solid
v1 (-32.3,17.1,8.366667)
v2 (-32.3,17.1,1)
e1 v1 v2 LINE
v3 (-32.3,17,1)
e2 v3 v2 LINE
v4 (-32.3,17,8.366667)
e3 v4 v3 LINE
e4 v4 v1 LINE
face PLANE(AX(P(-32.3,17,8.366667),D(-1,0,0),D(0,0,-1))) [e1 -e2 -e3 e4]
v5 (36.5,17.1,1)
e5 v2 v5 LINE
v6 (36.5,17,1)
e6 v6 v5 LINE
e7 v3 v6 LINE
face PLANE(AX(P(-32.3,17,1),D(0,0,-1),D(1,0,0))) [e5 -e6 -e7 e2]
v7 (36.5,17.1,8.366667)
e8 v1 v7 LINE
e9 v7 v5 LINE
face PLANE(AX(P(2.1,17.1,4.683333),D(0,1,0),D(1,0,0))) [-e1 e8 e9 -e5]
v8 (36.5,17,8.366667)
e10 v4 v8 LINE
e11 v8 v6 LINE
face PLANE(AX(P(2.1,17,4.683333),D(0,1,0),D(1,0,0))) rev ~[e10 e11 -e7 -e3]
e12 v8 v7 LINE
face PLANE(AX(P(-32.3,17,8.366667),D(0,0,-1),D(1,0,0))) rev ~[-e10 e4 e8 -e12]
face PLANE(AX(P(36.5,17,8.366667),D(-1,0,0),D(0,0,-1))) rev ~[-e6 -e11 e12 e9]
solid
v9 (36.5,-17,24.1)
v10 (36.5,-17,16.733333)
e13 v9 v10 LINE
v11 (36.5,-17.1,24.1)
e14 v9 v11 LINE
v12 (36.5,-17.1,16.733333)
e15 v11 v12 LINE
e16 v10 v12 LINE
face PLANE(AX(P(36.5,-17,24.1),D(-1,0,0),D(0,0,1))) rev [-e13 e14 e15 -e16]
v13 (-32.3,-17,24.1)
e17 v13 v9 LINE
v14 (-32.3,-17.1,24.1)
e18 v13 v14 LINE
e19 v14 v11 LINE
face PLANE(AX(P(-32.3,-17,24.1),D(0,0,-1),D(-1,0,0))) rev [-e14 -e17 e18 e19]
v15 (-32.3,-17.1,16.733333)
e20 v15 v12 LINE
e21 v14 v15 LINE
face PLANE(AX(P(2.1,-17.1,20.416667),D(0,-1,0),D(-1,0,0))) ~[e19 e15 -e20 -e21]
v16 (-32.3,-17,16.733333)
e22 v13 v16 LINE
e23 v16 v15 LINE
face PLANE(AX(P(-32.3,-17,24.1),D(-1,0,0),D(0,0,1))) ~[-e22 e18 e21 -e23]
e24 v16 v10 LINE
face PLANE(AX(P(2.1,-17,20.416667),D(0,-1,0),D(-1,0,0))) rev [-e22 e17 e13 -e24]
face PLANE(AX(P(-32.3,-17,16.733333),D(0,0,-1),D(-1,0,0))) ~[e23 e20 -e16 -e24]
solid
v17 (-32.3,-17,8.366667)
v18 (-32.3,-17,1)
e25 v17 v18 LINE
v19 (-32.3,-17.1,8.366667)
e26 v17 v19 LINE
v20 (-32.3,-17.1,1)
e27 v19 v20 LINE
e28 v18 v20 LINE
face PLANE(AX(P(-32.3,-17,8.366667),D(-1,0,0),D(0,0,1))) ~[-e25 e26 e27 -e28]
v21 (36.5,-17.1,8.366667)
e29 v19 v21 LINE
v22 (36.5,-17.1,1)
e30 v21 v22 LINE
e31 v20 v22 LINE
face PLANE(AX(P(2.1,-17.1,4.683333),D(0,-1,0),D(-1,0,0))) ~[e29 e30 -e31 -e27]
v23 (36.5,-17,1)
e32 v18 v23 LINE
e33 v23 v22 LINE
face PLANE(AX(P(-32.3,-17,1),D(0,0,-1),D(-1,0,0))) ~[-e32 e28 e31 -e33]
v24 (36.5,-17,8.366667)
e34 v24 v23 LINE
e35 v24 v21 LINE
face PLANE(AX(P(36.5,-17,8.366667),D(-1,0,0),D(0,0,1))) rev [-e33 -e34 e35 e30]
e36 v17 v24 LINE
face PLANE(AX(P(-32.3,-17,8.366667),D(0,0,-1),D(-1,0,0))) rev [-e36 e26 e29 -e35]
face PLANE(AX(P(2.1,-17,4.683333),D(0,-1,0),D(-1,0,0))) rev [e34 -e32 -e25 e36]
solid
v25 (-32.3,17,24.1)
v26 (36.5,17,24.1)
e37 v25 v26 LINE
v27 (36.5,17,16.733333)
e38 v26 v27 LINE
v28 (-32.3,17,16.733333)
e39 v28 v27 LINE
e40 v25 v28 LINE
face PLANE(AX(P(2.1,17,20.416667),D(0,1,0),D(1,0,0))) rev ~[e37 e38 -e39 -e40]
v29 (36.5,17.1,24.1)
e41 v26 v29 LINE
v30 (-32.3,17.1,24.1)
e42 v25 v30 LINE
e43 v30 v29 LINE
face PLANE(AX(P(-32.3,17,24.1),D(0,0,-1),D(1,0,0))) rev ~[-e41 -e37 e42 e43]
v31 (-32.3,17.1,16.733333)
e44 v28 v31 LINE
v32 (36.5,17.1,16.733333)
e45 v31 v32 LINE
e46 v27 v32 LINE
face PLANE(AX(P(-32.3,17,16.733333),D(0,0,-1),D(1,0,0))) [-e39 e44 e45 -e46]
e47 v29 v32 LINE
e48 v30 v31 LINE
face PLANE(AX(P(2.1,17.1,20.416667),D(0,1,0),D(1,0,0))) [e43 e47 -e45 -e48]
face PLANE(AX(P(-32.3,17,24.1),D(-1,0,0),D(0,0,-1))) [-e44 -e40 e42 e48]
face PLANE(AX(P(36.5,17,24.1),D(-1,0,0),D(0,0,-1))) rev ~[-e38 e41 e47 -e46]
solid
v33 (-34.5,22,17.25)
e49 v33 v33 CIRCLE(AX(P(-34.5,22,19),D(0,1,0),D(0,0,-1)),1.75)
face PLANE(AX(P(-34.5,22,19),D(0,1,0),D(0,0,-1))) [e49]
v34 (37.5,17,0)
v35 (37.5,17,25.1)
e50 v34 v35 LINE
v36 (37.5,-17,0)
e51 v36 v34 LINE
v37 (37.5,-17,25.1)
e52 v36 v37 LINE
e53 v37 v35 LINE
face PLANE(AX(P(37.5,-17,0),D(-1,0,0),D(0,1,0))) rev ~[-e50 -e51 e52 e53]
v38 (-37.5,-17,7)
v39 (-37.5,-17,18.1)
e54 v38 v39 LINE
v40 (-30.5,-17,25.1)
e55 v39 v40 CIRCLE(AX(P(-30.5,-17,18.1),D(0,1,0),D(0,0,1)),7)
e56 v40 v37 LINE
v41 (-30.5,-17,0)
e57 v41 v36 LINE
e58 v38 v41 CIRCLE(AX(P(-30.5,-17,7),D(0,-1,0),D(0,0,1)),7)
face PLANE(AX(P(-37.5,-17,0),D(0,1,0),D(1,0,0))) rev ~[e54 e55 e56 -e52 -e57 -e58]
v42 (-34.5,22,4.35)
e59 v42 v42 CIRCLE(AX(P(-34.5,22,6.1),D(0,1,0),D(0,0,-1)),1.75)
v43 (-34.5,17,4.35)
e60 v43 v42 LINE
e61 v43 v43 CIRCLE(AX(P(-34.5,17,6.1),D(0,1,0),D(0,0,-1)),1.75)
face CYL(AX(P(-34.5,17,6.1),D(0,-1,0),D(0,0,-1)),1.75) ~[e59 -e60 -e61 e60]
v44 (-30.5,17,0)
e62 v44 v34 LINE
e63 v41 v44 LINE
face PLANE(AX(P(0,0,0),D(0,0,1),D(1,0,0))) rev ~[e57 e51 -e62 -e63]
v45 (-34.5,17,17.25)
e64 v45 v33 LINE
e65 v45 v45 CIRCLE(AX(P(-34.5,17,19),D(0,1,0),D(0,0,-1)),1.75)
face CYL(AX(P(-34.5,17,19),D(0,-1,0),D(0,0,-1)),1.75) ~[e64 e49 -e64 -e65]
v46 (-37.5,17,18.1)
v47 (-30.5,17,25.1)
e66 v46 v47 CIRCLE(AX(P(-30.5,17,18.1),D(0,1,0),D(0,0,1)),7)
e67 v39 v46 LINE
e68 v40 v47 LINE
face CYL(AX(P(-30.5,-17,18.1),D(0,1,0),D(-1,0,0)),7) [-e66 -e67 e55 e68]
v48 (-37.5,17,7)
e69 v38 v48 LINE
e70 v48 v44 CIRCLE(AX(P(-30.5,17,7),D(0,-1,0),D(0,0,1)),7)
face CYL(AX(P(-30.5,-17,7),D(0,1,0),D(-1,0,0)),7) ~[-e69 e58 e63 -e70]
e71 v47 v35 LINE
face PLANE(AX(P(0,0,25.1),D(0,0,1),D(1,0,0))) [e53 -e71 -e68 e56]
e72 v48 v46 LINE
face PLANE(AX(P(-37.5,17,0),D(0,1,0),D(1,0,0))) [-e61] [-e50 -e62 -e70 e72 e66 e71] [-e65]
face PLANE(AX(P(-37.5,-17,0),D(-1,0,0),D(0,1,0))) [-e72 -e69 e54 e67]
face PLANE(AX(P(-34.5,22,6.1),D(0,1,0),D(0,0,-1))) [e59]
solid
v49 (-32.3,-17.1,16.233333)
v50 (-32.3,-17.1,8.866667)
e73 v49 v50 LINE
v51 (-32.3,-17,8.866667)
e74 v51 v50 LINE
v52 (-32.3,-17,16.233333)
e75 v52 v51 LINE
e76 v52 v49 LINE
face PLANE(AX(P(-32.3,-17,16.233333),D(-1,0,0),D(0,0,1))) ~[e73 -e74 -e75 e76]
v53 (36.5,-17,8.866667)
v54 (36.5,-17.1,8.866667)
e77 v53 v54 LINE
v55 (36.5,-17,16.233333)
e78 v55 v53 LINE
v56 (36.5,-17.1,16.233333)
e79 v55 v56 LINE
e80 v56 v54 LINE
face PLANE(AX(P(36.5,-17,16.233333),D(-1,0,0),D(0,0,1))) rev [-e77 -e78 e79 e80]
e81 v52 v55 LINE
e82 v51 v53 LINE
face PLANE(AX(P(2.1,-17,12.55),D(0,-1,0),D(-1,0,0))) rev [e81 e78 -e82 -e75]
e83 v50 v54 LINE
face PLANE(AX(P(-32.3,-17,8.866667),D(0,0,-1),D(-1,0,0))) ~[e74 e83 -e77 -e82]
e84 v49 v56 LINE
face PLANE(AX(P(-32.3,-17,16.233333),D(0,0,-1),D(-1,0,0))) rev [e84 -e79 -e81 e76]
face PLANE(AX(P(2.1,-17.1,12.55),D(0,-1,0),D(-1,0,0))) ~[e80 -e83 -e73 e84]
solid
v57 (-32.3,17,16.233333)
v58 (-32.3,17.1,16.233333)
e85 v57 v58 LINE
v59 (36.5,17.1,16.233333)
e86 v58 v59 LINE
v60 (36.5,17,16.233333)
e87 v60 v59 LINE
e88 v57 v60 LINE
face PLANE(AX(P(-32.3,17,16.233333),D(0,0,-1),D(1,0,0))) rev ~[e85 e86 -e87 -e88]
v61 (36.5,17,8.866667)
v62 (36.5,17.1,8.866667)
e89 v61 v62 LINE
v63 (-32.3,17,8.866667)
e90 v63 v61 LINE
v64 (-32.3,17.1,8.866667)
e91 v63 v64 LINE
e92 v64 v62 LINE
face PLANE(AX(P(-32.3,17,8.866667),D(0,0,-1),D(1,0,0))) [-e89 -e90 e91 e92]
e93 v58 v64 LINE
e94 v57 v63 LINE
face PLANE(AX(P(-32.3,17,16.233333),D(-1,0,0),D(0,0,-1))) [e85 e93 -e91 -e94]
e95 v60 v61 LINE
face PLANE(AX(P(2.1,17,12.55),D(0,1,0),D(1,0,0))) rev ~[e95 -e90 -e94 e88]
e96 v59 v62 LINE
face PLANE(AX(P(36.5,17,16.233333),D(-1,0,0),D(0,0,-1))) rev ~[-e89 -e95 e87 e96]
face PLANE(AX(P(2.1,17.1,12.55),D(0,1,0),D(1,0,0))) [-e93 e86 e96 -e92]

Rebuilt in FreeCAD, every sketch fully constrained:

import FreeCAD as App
import Part
import Sketcher

V = App.Vector


def edges_at(feature, points):
    """Names of the edges that pass closest to the given points."""
    edges = feature.Shape.Edges
    near = lambda p: min(range(len(edges)), key=lambda i: edges[i].distToShape(Part.Vertex(*p))[0])
    return sorted({f"Edge{near(p) + 1}" for p in points})


def add_polygon(sketch, points):
    """Adds a closed chain of lines whose ends are joined by coincident constraints."""
    first, n = sketch.GeometryCount, len(points)
    for a, b in zip(points, points[1:] + points[:1]):
        sketch.addGeometry(Part.LineSegment(App.Vector(*a, 0), App.Vector(*b, 0)), False)
    for i in range(n):
        sketch.addConstraint(Sketcher.Constraint("Coincident", first + i, 2, first + (i + 1) % n, 1))

doc = App.newDocument("Part")
params = doc.addObject("Spreadsheet::Sheet", "Params")
for row, (alias, value) in enumerate([
    ("sketch1_width", "75 mm"),
    ("sketch1_height", "34 mm"),
    ("pad1_length", "25.1 mm"),
    ("fillet_radius", "7 mm"),
    ("sketch2_diameter", "3.5 mm"),
    ("pad2_length", "5 mm"),
    ("sketch3_width", "68.8 mm"),
    ("pad3_length", "0.1 mm"),
    ("sketch4_width", "68.8 mm"),
    ("pad4_length", "0.1 mm"),
    ("sketch5_width", "68.8 mm"),
    ("pad5_length", "0.1 mm"),
], start=1):
    params.set(f"A{row}", alias)
    params.set(f"B{row}", "=" + value)
    params.setAlias(f"B{row}", alias)

body = doc.addObject("PartDesign::Body", "Body")

# Sketch on XY plane
sketch1 = doc.addObject("Sketcher::SketchObject", "Sketch")
body.addObject(sketch1)
sketch1.AttachmentSupport = (doc.XY_Plane, [""])
sketch1.MapMode = "FlatFace"
add_polygon(sketch1, [(-37.5, 17), (-37.5, -17), (37.5, -17), (37.5, 17)])  # lines 0-3
sketch1.addConstraint([
    Sketcher.Constraint("Vertical", 0),
    Sketcher.Constraint("Horizontal", 1),
    Sketcher.Constraint("Vertical", 2),
    Sketcher.Constraint("Horizontal", 3),
    Sketcher.Constraint("Symmetric", 0, 2, 2, 2, -1, 1),
    Sketcher.Constraint("DistanceX", 1, 1, 1, 2, 75.0),
    Sketcher.Constraint("DistanceY", 0, 2, 0, 1, 34.0),
])
sketch1.setExpression("Constraints[9]", "Params.sketch1_width")
sketch1.setExpression("Constraints[10]", "Params.sketch1_height")
pad1 = doc.addObject("PartDesign::Pad", "Pad")
body.addObject(pad1)
pad1.Profile = sketch1
pad1.setExpression("Length", "Params.pad1_length")
doc.recompute()

fillet = doc.addObject("PartDesign::Fillet", "Fillet")
body.addObject(fillet)
fillet.Base = (pad1, edges_at(pad1, [(-37.5, 0, 25.1), (-37.5, 0, 0)]))
fillet.setExpression("Radius", "Params.fillet_radius")

# Sketch on XZ plane
sketch2 = doc.addObject("Sketcher::SketchObject", "Sketch001")
body.addObject(sketch2)
sketch2.AttachmentSupport = (doc.XZ_Plane, [""])
sketch2.MapMode = "FlatFace"
sketch2.AttachmentOffset = App.Placement(V(0, 0, -17), App.Rotation())
sketch2.addGeometry([
    Part.Circle(V(-34.5, 6.1, 0), V(0, 0, 1), 1.75),
    Part.Circle(V(-34.5, 19, 0), V(0, 0, 1), 1.75),
], False)
sketch2.addConstraint([
    Sketcher.Constraint("Equal", 0, 1),
    Sketcher.Constraint("Vertical", 0, 3, 1, 3),
    Sketcher.Constraint("Diameter", 0, 3.5),
    Sketcher.Constraint("DistanceY", -1, 1, 1, 3, 19.0),
    Sketcher.Constraint("DistanceX", 0, 3, -1, 1, 34.5),
    Sketcher.Constraint("DistanceY", -1, 1, 0, 3, 6.1),
])
sketch2.setExpression("Constraints[2]", "Params.sketch2_diameter")
pad2 = doc.addObject("PartDesign::Pad", "Pad001")
body.addObject(pad2)
pad2.Profile = sketch2
pad2.setExpression("Length", "Params.pad2_length")
pad2.Reversed = True
body2 = doc.addObject("PartDesign::Body", "Body001")

# Sketch on XZ plane
sketch3 = doc.addObject("Sketcher::SketchObject", "Sketch002")
body2.addObject(sketch3)
sketch3.AttachmentSupport = (doc.getObject("XZ_Plane001"), [""])
sketch3.MapMode = "FlatFace"
sketch3.AttachmentOffset = App.Placement(V(0, 0, -17), App.Rotation())
add_polygon(sketch3, [(-32.3, 1), (-32.3, 8.366667), (36.5, 8.366667), (36.5, 1)])  # lines 0-3
sketch3.addConstraint([
    Sketcher.Constraint("Vertical", 0),
    Sketcher.Constraint("Horizontal", 1),
    Sketcher.Constraint("Vertical", 2),
    Sketcher.Constraint("Horizontal", 3),
    Sketcher.Constraint("DistanceX", 1, 1, 1, 2, 68.8),
    Sketcher.Constraint("DistanceY", -1, 1, 2, 2, 1.0),
    Sketcher.Constraint("DistanceX", 0, 2, -1, 1, 32.3),
    Sketcher.Constraint("DistanceY", 0, 1, 0, 2, 7.366667),
])
sketch3.setExpression("Constraints[8]", "Params.sketch3_width")
pad3 = doc.addObject("PartDesign::Pad", "Pad002")
body2.addObject(pad3)
pad3.Profile = sketch3
pad3.setExpression("Length", "Params.pad3_length")
pad3.Reversed = True
body3 = doc.addObject("PartDesign::Body", "Body002")

# Sketch on XZ plane
sketch4 = doc.addObject("Sketcher::SketchObject", "Sketch003")
body3.addObject(sketch4)
sketch4.AttachmentSupport = (doc.getObject("XZ_Plane002"), [""])
sketch4.MapMode = "FlatFace"
sketch4.AttachmentOffset = App.Placement(V(0, 0, -17), App.Rotation())
add_polygon(sketch4, [(-32.3, 8.866667), (-32.3, 16.233333), (36.5, 16.233333), (36.5, 8.866667)])  # lines 0-3
sketch4.addConstraint([
    Sketcher.Constraint("Vertical", 0),
    Sketcher.Constraint("Horizontal", 1),
    Sketcher.Constraint("Vertical", 2),
    Sketcher.Constraint("Horizontal", 3),
    Sketcher.Constraint("DistanceX", 1, 1, 1, 2, 68.8),
    Sketcher.Constraint("DistanceX", 0, 2, -1, 1, 32.3),
    Sketcher.Constraint("DistanceY", 0, 1, 0, 2, 7.366667),
    Sketcher.Constraint("DistanceY", -1, 1, 0, 2, 16.233333),
])
sketch4.setExpression("Constraints[8]", "Params.sketch4_width")
pad4 = doc.addObject("PartDesign::Pad", "Pad003")
body3.addObject(pad4)
pad4.Profile = sketch4
pad4.setExpression("Length", "Params.pad4_length")
pad4.Reversed = True
body4 = doc.addObject("PartDesign::Body", "Body003")

# Sketch on XZ plane
sketch5 = doc.addObject("Sketcher::SketchObject", "Sketch004")
body4.addObject(sketch5)
sketch5.AttachmentSupport = (doc.getObject("XZ_Plane003"), [""])
sketch5.MapMode = "FlatFace"
sketch5.AttachmentOffset = App.Placement(V(0, 0, -17), App.Rotation())
add_polygon(sketch5, [(-32.3, 16.733333), (-32.3, 24.1), (36.5, 24.1), (36.5, 16.733333)])  # lines 0-3
sketch5.addConstraint([
    Sketcher.Constraint("Vertical", 0),
    Sketcher.Constraint("Horizontal", 1),
    Sketcher.Constraint("Vertical", 2),
    Sketcher.Constraint("Horizontal", 3),
    Sketcher.Constraint("DistanceX", 1, 1, 1, 2, 68.8),
    Sketcher.Constraint("DistanceX", 0, 2, -1, 1, 32.3),
    Sketcher.Constraint("DistanceY", -1, 1, 0, 2, 24.1),
    Sketcher.Constraint("DistanceY", 0, 1, 0, 2, 7.366667),
])
sketch5.setExpression("Constraints[8]", "Params.sketch5_width")
pad5 = doc.addObject("PartDesign::Pad", "Pad004")
body4.addObject(pad5)
pad5.Profile = sketch5
pad5.setExpression("Length", "Params.pad5_length")
pad5.Reversed = True
body5 = doc.addObject("PartDesign::Body", "Body004")
doc.recompute()

mirroring = doc.addObject("Part::Mirroring", "Mirroring")
mirroring.Source = body4
mirroring.Base = V(0, 0, 0)
mirroring.Normal = V(0, 1, 0)
body5.BaseFeature = mirroring
doc.recompute()
body6 = doc.addObject("PartDesign::Body", "Body005")
doc.recompute()

mirroring2 = doc.addObject("Part::Mirroring", "Mirroring001")
mirroring2.Source = body3
mirroring2.Base = V(0, 0, 0)
mirroring2.Normal = V(0, 1, 0)
body6.BaseFeature = mirroring2
doc.recompute()
body7 = doc.addObject("PartDesign::Body", "Body006")
doc.recompute()

mirroring3 = doc.addObject("Part::Mirroring", "Mirroring002")
mirroring3.Source = body2
mirroring3.Base = V(0, 0, 0)
mirroring3.Normal = V(0, 1, 0)
body7.BaseFeature = mirroring3
doc.recompute()
mirroring.Visibility = False
mirroring2.Visibility = False
mirroring3.Visibility = False

doc.recompute()
